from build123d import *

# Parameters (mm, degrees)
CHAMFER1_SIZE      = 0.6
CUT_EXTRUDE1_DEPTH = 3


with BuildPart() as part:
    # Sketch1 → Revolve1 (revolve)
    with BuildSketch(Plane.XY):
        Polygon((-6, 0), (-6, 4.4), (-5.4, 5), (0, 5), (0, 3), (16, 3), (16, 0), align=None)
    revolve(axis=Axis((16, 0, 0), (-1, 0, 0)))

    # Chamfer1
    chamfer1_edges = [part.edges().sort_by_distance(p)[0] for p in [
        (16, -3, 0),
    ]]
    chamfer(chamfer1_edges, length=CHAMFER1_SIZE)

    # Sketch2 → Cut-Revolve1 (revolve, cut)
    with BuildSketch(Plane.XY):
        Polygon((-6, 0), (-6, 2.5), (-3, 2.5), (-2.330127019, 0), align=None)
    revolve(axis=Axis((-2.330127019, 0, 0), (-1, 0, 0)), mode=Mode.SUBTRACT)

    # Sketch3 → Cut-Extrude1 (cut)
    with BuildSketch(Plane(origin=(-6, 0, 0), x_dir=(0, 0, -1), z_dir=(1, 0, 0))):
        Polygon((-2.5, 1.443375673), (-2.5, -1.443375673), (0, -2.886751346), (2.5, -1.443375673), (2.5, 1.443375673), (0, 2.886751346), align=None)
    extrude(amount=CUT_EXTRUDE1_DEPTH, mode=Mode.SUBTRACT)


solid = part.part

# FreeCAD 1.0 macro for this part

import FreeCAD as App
import Part
import Sketcher
Q = App.Units.Quantity


def edges_at(feature, points):
    """Names of the edges that pass closest to the given points."""
    edges = feature.Shape.Edges
    near = lambda p: min(range(len(edges)), key=lambda i: edges[i].distToShape(Part.Vertex(*p))[0])
    return sorted({f"Edge{near(p) + 1}" for p in points})

doc = App.newDocument("Part")
body = doc.addObject("PartDesign::Body", "Body")

# Sketch on XY plane
sketch1 = body.newObject("Sketcher::SketchObject", "Sketch")
sketch1.AttachmentSupport = (doc.getObject("XY_Plane"), [""])
sketch1.MapMode = "FlatFace"
sketch1.addGeometry([
    Part.LineSegment(App.Vector(-6, 4.4, 0), App.Vector(-6, 0, 0)),  # 0
    Part.LineSegment(App.Vector(-6, 0, 0), App.Vector(16, 0, 0)),  # 1
    Part.LineSegment(App.Vector(16, 0, 0), App.Vector(16, 3, 0)),  # 2
    Part.LineSegment(App.Vector(16, 3, 0), App.Vector(0, 3, 0)),  # 3
    Part.LineSegment(App.Vector(0, 3, 0), App.Vector(0, 5, 0)),  # 4
    Part.LineSegment(App.Vector(0, 5, 0), App.Vector(-5.4, 5, 0)),  # 5
    Part.LineSegment(App.Vector(-5.4, 5, 0), App.Vector(-6, 4.4, 0)),  # 6
], False)
sketch1.addConstraint([
    Sketcher.Constraint("Coincident", 0, 2, 1, 1),
    Sketcher.Constraint("Coincident", 1, 2, 2, 1),
    Sketcher.Constraint("Coincident", 2, 2, 3, 1),
    Sketcher.Constraint("Coincident", 3, 2, 4, 1),
    Sketcher.Constraint("Coincident", 4, 2, 5, 1),
    Sketcher.Constraint("Coincident", 5, 2, 6, 1),
    Sketcher.Constraint("Coincident", 6, 2, 0, 1),
    Sketcher.Constraint("Vertical", 0),
    Sketcher.Constraint("Horizontal", 1),
    Sketcher.Constraint("Vertical", 2),
    Sketcher.Constraint("Horizontal", 3),
    Sketcher.Constraint("Vertical", 4),
    Sketcher.Constraint("Horizontal", 5),
    Sketcher.Constraint("PointOnObject", 0, 2, -1),
    Sketcher.Constraint("PointOnObject", 3, 2, -2),
    Sketcher.Constraint("DistanceX", 1, 1, 1, 2, 22.0),
    Sketcher.Constraint("DistanceX", 3, 2, 3, 1, 16.0),
    Sketcher.Constraint("DistanceY", 2, 1, 2, 2, 3.0),
    Sketcher.Constraint("DistanceY", 4, 1, 4, 2, 2.0),
    Sketcher.Constraint("Angle", 6, Q("-135 deg")),
    Sketcher.Constraint("DistanceX", 5, 2, 5, 1, 5.4),
])
revolution = body.newObject("PartDesign::Revolution", "Revolution")
revolution.Profile = sketch1
revolution.ReferenceAxis = (sketch1, ["H_Axis"])
revolution.Angle = 360
doc.recompute()

chamfer = body.newObject("PartDesign::Chamfer", "Chamfer")
chamfer.Base = (revolution, edges_at(revolution, [(16, -3, 0)]))
chamfer.Size = 0.6

# Sketch on XY plane
sketch2 = body.newObject("Sketcher::SketchObject", "Sketch001")
sketch2.AttachmentSupport = (doc.getObject("XY_Plane"), [""])
sketch2.MapMode = "FlatFace"
sketch2.addGeometry([
    Part.LineSegment(App.Vector(-6, 2.5, 0), App.Vector(-6, 0, 0)),
    Part.LineSegment(App.Vector(-6, 0, 0), App.Vector(-2.330127, 0, 0)),
    Part.LineSegment(App.Vector(-2.330127, 0, 0), App.Vector(-3, 2.5, 0)),
    Part.LineSegment(App.Vector(-3, 2.5, 0), App.Vector(-6, 2.5, 0)),
], False)
sketch2.addConstraint([
    Sketcher.Constraint("Coincident", 0, 2, 1, 1),
    Sketcher.Constraint("Coincident", 1, 2, 2, 1),
    Sketcher.Constraint("Coincident", 2, 2, 3, 1),
    Sketcher.Constraint("Coincident", 3, 2, 0, 1),
    Sketcher.Constraint("Vertical", 0),
    Sketcher.Constraint("Horizontal", 1),
    Sketcher.Constraint("Horizontal", 3),
    Sketcher.Constraint("PointOnObject", 0, 2, -1),
    Sketcher.Constraint("DistanceX", 3, 2, 3, 1, 3.0),
    Sketcher.Constraint("Angle", 2, Q("105 deg")),
    Sketcher.Constraint("DistanceY", 0, 2, 0, 1, 2.5),
    Sketcher.Constraint("DistanceX", 0, 2, -1, 1, 6.0),
])
groove = body.newObject("PartDesign::Groove", "Groove")
groove.Profile = sketch2
groove.ReferenceAxis = (sketch2, ["H_Axis"])
groove.Angle = 360

# Sketch on YZ plane
sketch3 = body.newObject("Sketcher::SketchObject", "Sketch002")
sketch3.AttachmentSupport = (doc.getObject("YZ_Plane"), [""])
sketch3.MapMode = "FlatFace"
sketch3.AttachmentOffset = App.Placement(App.Vector(0, 0, -6), App.Rotation())
sketch3.addGeometry([
    Part.LineSegment(App.Vector(1.443376, 2.5, 0), App.Vector(-1.443376, 2.5, 0)),  # 0
    Part.LineSegment(App.Vector(-1.443376, 2.5, 0), App.Vector(-2.886751, 0, 0)),  # 1
    Part.LineSegment(App.Vector(-2.886751, 0, 0), App.Vector(-1.443376, -2.5, 0)),  # 2
    Part.LineSegment(App.Vector(-1.443376, -2.5, 0), App.Vector(1.443376, -2.5, 0)),  # 3
    Part.LineSegment(App.Vector(1.443376, -2.5, 0), App.Vector(2.886751, 0, 0)),  # 4
    Part.LineSegment(App.Vector(2.886751, 0, 0), App.Vector(1.443376, 2.5, 0)),  # 5
], False)
sketch3.addConstraint([
    Sketcher.Constraint("Coincident", 0, 2, 1, 1),
    Sketcher.Constraint("Coincident", 1, 2, 2, 1),
    Sketcher.Constraint("Coincident", 2, 2, 3, 1),
    Sketcher.Constraint("Coincident", 3, 2, 4, 1),
    Sketcher.Constraint("Coincident", 4, 2, 5, 1),
    Sketcher.Constraint("Coincident", 5, 2, 0, 1),
    Sketcher.Constraint("Horizontal", 0),
    Sketcher.Constraint("Horizontal", 3),
    Sketcher.Constraint("Symmetric", 0, 2, 3, 2, -1, 1),
    Sketcher.Constraint("Symmetric", 1, 2, 4, 2, -1, 1),
    Sketcher.Constraint("PointOnObject", 1, 2, -1),
    Sketcher.Constraint("Parallel", 2, 5),
    Sketcher.Constraint("Vertical", 0, 2, 2, 2),
    Sketcher.Constraint("Angle", 1, Q("-120 deg")),
    Sketcher.Constraint("DistanceY", 2, 2, 0, 2, 5.0),
    Sketcher.Constraint("DistanceX", 0, 2, 0, 1, 2.886751),
])
pocket1 = body.newObject("PartDesign::Pocket", "Pocket")
pocket1.Profile = sketch3
pocket1.Length = 3
pocket1.Reversed = True

doc.recompute()
